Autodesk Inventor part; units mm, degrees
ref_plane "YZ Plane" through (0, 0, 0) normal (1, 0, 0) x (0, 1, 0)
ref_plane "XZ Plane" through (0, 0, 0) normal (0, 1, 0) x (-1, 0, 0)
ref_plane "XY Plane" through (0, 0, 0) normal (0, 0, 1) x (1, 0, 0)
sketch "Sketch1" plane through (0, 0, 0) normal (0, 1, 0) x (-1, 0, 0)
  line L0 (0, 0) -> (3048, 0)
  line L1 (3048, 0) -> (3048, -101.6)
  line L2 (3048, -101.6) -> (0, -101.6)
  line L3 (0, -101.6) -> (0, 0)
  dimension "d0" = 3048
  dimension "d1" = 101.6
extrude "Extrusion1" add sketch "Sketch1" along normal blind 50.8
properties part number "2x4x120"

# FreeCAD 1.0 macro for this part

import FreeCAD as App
import Part
import Sketcher
Q = App.Units.Quantity


def add_polygon(sketch, points):
    """Adds a closed chain of lines whose ends are joined by coincident constraints."""
    first, n = sketch.GeometryCount, len(points)
    for a, b in zip(points, points[1:] + points[:1]):
        sketch.addGeometry(Part.LineSegment(App.Vector(*a, 0), App.Vector(*b, 0)), False)
    for i in range(n):
        sketch.addConstraint(Sketcher.Constraint("Coincident", first + i, 2, first + (i + 1) % n, 1))

doc = App.newDocument("Part")
body = doc.addObject("PartDesign::Body", "Body")

# Sketch on XZ plane
sketch1 = body.newObject("Sketcher::SketchObject", "Sketch")
sketch1.AttachmentSupport = (doc.getObject("XZ_Plane"), [""])
sketch1.MapMode = "FlatFace"
add_polygon(sketch1, [(-3048, 0), (0, 0), (0, -102), (-3048, -102)])  # lines 0-3
sketch1.addConstraint([
    Sketcher.Constraint("Horizontal", 0),
    Sketcher.Constraint("Vertical", 1),
    Sketcher.Constraint("Horizontal", 2),
    Sketcher.Constraint("Vertical", 3),
    Sketcher.Constraint("Coincident", 0, 2, -1, 1),
    Sketcher.Constraint("DistanceX", 0, 1, 0, 2, Q("120 in")),
    Sketcher.Constraint("DistanceY", 1, 2, 1, 1, Q("4 in")),
])
pad1 = body.newObject("PartDesign::Pad", "Pad")
pad1.Profile = sketch1
pad1.Length = Q("2 in")
pad1.Reversed = True

doc.recompute()
